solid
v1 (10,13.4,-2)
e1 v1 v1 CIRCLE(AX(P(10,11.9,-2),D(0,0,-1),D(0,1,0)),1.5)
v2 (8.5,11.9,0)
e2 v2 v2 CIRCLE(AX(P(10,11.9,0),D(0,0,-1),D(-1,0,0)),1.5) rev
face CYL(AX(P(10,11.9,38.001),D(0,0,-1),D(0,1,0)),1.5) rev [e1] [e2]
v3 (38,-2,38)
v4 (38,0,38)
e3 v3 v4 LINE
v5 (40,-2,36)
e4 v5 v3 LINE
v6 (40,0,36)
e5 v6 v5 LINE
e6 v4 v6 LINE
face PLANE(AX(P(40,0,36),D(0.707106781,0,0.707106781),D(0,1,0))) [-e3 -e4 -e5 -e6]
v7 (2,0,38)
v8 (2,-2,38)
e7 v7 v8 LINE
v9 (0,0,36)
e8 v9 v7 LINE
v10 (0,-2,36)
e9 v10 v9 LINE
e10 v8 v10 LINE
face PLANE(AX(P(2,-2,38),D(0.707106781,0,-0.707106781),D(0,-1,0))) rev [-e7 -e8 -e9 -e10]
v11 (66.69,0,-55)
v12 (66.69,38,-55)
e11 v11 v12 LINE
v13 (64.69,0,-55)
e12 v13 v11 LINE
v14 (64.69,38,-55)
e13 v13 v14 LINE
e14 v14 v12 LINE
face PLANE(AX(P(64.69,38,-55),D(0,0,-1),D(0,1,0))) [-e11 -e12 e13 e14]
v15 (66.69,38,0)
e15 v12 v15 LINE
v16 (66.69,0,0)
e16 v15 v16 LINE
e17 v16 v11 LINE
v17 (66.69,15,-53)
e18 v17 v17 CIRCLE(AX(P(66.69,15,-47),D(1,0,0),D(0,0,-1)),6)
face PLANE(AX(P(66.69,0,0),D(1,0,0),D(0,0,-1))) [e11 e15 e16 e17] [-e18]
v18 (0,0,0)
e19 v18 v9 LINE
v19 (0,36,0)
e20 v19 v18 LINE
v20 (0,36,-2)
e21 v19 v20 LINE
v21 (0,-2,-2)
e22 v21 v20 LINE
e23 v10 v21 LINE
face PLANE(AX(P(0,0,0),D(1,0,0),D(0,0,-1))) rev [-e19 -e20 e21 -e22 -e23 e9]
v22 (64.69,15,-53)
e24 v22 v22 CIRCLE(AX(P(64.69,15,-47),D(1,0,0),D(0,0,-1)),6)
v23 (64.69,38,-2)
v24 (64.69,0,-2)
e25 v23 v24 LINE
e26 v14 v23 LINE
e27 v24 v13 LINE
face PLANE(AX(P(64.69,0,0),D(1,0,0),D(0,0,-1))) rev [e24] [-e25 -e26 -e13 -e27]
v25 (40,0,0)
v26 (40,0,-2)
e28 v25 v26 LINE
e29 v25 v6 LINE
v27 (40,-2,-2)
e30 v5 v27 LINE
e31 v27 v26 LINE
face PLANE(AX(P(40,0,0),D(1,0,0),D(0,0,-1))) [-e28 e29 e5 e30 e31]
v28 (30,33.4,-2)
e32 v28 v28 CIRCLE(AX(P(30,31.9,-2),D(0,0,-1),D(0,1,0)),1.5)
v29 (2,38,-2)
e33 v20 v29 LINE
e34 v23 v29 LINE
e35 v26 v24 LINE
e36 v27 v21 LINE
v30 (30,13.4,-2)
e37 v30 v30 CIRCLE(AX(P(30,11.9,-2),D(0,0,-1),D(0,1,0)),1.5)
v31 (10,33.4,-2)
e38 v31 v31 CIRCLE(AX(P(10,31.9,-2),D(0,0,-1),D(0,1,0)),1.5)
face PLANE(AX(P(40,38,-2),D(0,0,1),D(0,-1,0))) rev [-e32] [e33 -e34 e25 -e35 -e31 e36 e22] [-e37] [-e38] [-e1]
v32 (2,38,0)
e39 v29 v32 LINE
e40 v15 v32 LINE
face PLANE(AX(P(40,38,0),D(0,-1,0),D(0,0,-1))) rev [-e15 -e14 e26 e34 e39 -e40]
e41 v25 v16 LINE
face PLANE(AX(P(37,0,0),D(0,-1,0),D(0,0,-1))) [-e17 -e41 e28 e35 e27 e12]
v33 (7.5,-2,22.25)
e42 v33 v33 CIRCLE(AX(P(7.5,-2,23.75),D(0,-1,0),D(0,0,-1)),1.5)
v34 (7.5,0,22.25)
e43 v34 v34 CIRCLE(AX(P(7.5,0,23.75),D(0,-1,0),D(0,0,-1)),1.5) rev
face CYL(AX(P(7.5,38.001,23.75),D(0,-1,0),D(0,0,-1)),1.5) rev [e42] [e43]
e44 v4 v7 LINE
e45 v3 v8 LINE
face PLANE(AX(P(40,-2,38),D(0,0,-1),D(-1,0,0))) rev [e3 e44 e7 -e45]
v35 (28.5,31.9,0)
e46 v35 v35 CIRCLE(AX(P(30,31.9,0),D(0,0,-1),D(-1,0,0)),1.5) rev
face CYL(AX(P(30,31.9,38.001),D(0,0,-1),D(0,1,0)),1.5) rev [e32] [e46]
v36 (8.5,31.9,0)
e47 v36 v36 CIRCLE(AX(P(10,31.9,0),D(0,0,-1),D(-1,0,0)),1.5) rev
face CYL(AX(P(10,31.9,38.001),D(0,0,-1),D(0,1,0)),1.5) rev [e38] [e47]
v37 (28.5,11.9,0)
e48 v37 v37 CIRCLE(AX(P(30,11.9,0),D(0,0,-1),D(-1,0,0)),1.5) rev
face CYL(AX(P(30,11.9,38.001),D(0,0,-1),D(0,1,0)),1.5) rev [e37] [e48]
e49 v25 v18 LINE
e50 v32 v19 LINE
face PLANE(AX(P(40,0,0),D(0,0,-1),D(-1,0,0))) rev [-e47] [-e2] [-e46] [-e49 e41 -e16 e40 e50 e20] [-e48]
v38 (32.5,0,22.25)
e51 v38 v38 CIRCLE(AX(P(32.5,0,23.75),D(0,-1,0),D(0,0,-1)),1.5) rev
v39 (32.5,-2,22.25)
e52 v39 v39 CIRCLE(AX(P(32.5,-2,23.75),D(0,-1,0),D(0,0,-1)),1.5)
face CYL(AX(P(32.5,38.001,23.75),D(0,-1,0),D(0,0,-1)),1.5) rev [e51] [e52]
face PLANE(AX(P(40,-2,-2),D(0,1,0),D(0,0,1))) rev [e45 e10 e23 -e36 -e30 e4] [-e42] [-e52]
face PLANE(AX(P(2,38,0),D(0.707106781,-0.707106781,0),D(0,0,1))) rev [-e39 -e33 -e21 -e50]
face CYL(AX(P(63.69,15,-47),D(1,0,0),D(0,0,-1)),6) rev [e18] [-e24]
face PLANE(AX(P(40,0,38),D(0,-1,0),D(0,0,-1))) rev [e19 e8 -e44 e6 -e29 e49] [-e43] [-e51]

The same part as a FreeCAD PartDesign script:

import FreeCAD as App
import Part
import Sketcher

V = App.Vector
Q = App.Units.Quantity


def edges_at(feature, points):
    """Names of the edges that pass closest to the given points."""
    edges = feature.Shape.Edges
    near = lambda p: min(range(len(edges)), key=lambda i: edges[i].distToShape(Part.Vertex(*p))[0])
    return sorted({f"Edge{near(p) + 1}" for p in points})

doc = App.newDocument("Part")
body = doc.addObject("PartDesign::Body", "Body")

sketch1 = body.newObject("Sketcher::SketchObject", "Sketch")
sketch1.AttachmentSupport = (doc.getObject("YZ_Plane"), [""])
sketch1.MapMode = "FlatFace"
sketch1.addGeometry(Part.LineSegment(V(38, 0, 0), V(0, 0, 0)), False)
sketch1.addGeometry(Part.LineSegment(V(0, 0, 0), V(0, 38, 0)), False)
sketch1.addGeometry(Part.LineSegment(V(0, 38, 0), V(-2, 38, 0)), False)
sketch1.addGeometry(Part.LineSegment(V(-2, 38, 0), V(-2, -2, 0)), False)
sketch1.addGeometry(Part.LineSegment(V(-2, -2, 0), V(38, -2, 0)), False)
sketch1.addGeometry(Part.LineSegment(V(38, -2, 0), V(38, 0, 0)), False)
sketch1.addConstraint(Sketcher.Constraint("Coincident", 0, 2, 1, 1))
sketch1.addConstraint(Sketcher.Constraint("Coincident", 1, 2, 2, 1))
sketch1.addConstraint(Sketcher.Constraint("Coincident", 2, 2, 3, 1))
sketch1.addConstraint(Sketcher.Constraint("Coincident", 3, 2, 4, 1))
sketch1.addConstraint(Sketcher.Constraint("Coincident", 4, 2, 5, 1))
sketch1.addConstraint(Sketcher.Constraint("Coincident", 5, 2, 0, 1))
sketch1.addConstraint(Sketcher.Constraint("Horizontal", 0))
sketch1.addConstraint(Sketcher.Constraint("Vertical", 1))
sketch1.addConstraint(Sketcher.Constraint("Horizontal", 2))
sketch1.addConstraint(Sketcher.Constraint("Vertical", 3))
sketch1.addConstraint(Sketcher.Constraint("Horizontal", 4))
sketch1.addConstraint(Sketcher.Constraint("Vertical", 5))
sketch1.addConstraint(Sketcher.Constraint("Coincident", 0, 2, -1, 1))
sketch1.addConstraint(Sketcher.Constraint("Equal", 0, 1))
sketch1.addConstraint(Sketcher.Constraint("Equal", 4, 3))
sketch1.addConstraint(Sketcher.Constraint("DistanceX", 0, 2, 0, 1, Q("38 mm")))
sketch1.addConstraint(Sketcher.Constraint("DistanceX", 2, 2, 2, 1, Q("2 mm")))
pad1 = body.newObject("PartDesign::Pad", "Pad")
pad1.Profile = sketch1
pad1.Length = 40

sketch2 = body.newObject("Sketcher::SketchObject", "Sketch001")
sketch2.AttachmentSupport = (doc.getObject("XZ_Plane"), [""])
sketch2.MapMode = "FlatFace"
sketch2.AttachmentOffset = App.Placement(V(0, 0, 2), App.Rotation())
sketch2.addGeometry(Part.Circle(V(32.5, 23.8, 0), V(0, 0, 1), 1.5), False)
sketch2.addConstraint(Sketcher.Constraint("Diameter", 0, Q("3 mm")))
sketch2.addConstraint(Sketcher.Constraint("DistanceX", -1, 1, 0, 3, Q("32.5 mm")))
sketch2.addConstraint(Sketcher.Constraint("DistanceY", -1, 1, 0, 3, Q("23.75 mm")))
pocket1 = body.newObject("PartDesign::Pocket", "Pocket")
pocket1.Profile = sketch2
pocket1.Type = "UpToFirst"

sketch3 = body.newObject("Sketcher::SketchObject", "Sketch002")
sketch3.AttachmentSupport = (doc.getObject("XZ_Plane"), [""])
sketch3.MapMode = "FlatFace"
sketch3.AttachmentOffset = App.Placement(V(0, 0, 2), App.Rotation())
sketch3.addGeometry(Part.Circle(V(7.5, 23.8, 0), V(0, 0, 1), 1.5), False)
sketch3.addConstraint(Sketcher.Constraint("Diameter", 0, Q("3 mm")))
sketch3.addConstraint(Sketcher.Constraint("DistanceX", -1, 1, 0, 3, Q("7.5 mm")))
sketch3.addConstraint(Sketcher.Constraint("DistanceY", -1, 1, 0, 3, Q("23.75 mm")))
pocket2 = body.newObject("PartDesign::Pocket", "Pocket001")
pocket2.Profile = sketch3
pocket2.Type = "UpToFirst"

sketch4 = body.newObject("Sketcher::SketchObject", "Sketch003")
sketch4.AttachmentSupport = (doc.getObject("XY_Plane"), [""])
sketch4.MapMode = "FlatFace"
sketch4.AttachmentOffset = App.Placement(V(0, 0, -2), App.Rotation())
sketch4.addGeometry(Part.Circle(V(10, 31.9, 0), V(0, 0, 1), 1.5), False)
sketch4.addConstraint(Sketcher.Constraint("Diameter", 0, Q("3 mm")))
sketch4.addConstraint(Sketcher.Constraint("DistanceX", -1, 1, 0, 3, Q("10 mm")))
sketch4.addConstraint(Sketcher.Constraint("DistanceY", -1, 1, 0, 3, Q("31.9 mm")))
pocket3 = body.newObject("PartDesign::Pocket", "Pocket002")
pocket3.Profile = sketch4
pocket3.Type = "UpToFirst"
pocket3.Reversed = True

sketch5 = body.newObject("Sketcher::SketchObject", "Sketch004")
sketch5.AttachmentSupport = (doc.getObject("XY_Plane"), [""])
sketch5.MapMode = "FlatFace"
sketch5.AttachmentOffset = App.Placement(V(0, 0, -2), App.Rotation())
sketch5.addGeometry(Part.Circle(V(30, 31.9, 0), V(0, 0, 1), 1.5), False)
sketch5.addConstraint(Sketcher.Constraint("Diameter", 0, Q("3 mm")))
sketch5.addConstraint(Sketcher.Constraint("DistanceX", -1, 1, 0, 3, Q("30 mm")))
sketch5.addConstraint(Sketcher.Constraint("DistanceY", -1, 1, 0, 3, Q("31.9 mm")))
pocket4 = body.newObject("PartDesign::Pocket", "Pocket003")
pocket4.Profile = sketch5
pocket4.Type = "UpToFirst"
pocket4.Reversed = True

sketch6 = body.newObject("Sketcher::SketchObject", "Sketch005")
sketch6.AttachmentSupport = (doc.getObject("XY_Plane"), [""])
sketch6.MapMode = "FlatFace"
sketch6.AttachmentOffset = App.Placement(V(0, 0, -2), App.Rotation())
sketch6.addGeometry(Part.Circle(V(30, 11.9, 0), V(0, 0, 1), 1.5), False)
sketch6.addConstraint(Sketcher.Constraint("Diameter", 0, Q("3 mm")))
sketch6.addConstraint(Sketcher.Constraint("DistanceX", -1, 1, 0, 3, Q("30 mm")))
sketch6.addConstraint(Sketcher.Constraint("DistanceY", -1, 1, 0, 3, Q("11.9 mm")))
pocket5 = body.newObject("PartDesign::Pocket", "Pocket004")
pocket5.Profile = sketch6
pocket5.Type = "UpToFirst"
pocket5.Reversed = True

sketch7 = body.newObject("Sketcher::SketchObject", "Sketch006")
sketch7.AttachmentSupport = (doc.getObject("XY_Plane"), [""])
sketch7.MapMode = "FlatFace"
sketch7.AttachmentOffset = App.Placement(V(0, 0, -2), App.Rotation())
sketch7.addGeometry(Part.Circle(V(10, 11.9, 0), V(0, 0, 1), 1.5), False)
sketch7.addConstraint(Sketcher.Constraint("Diameter", 0, Q("3 mm")))
sketch7.addConstraint(Sketcher.Constraint("DistanceX", -1, 1, 0, 3, Q("10 mm")))
sketch7.addConstraint(Sketcher.Constraint("DistanceY", -1, 1, 0, 3, Q("11.9 mm")))
pocket6 = body.newObject("PartDesign::Pocket", "Pocket005")
pocket6.Profile = sketch7
pocket6.Type = "UpToFirst"
pocket6.Reversed = True
doc.recompute()

chamfer = body.newObject("PartDesign::Chamfer", "Chamfer")
chamfer.Base = (pocket6, edges_at(pocket6, [
    (40, 38, -1),
    (0, 38, -1),
    (40, -1, 38),
    (0, -1, 38),
]))
chamfer.Size = 2

sketch8 = body.newObject("Sketcher::SketchObject", "Sketch007")
sketch8.AttachmentSupport = (doc.getObject("YZ_Plane"), [""])
sketch8.MapMode = "FlatFace"
sketch8.AttachmentOffset = App.Placement(V(0, 0, 40), App.Rotation())
sketch8.addGeometry(Part.LineSegment(V(38, 0, 0), V(0, 0, 0)), False)
sketch8.addGeometry(Part.LineSegment(V(0, 0, 0), V(0, -2, 0)), False)
sketch8.addGeometry(Part.LineSegment(V(0, -2, 0), V(38, -2, 0)), False)
sketch8.addGeometry(Part.LineSegment(V(38, -2, 0), V(38, 0, 0)), False)
sketch8.addConstraint(Sketcher.Constraint("Coincident", 0, 2, 1, 1))
sketch8.addConstraint(Sketcher.Constraint("Coincident", 1, 2, 2, 1))
sketch8.addConstraint(Sketcher.Constraint("Coincident", 2, 2, 3, 1))
sketch8.addConstraint(Sketcher.Constraint("Coincident", 3, 2, 0, 1))
sketch8.addConstraint(Sketcher.Constraint("Horizontal", 0))
sketch8.addConstraint(Sketcher.Constraint("Vertical", 1))
sketch8.addConstraint(Sketcher.Constraint("Horizontal", 2))
sketch8.addConstraint(Sketcher.Constraint("Vertical", 3))
sketch8.addConstraint(Sketcher.Constraint("Coincident", 0, 2, -1, 1))
sketch8.addConstraint(Sketcher.Constraint("DistanceX", 0, 2, 0, 1, Q("38 mm")))
sketch8.addConstraint(Sketcher.Constraint("DistanceY", 1, 2, 1, 1, Q("2 mm")))
pad2 = body.newObject("PartDesign::Pad", "Pad001")
pad2.Profile = sketch8
pad2.Type = "TwoLengths"
pad2.Length = 26.69
pad2.Length2 = 3

sketch9 = body.newObject("Sketcher::SketchObject", "Sketch008")
sketch9.AttachmentSupport = (doc.getObject("YZ_Plane"), [""])
sketch9.MapMode = "FlatFace"
sketch9.AttachmentOffset = App.Placement(V(0, 0, 66.69), App.Rotation())
sketch9.addGeometry(Part.LineSegment(V(38, -2, 0), V(0, -2, 0)), False)
sketch9.addGeometry(Part.LineSegment(V(0, -2, 0), V(0, -55, 0)), False)
sketch9.addGeometry(Part.LineSegment(V(0, -55, 0), V(38, -55, 0)), False)
sketch9.addGeometry(Part.LineSegment(V(38, -55, 0), V(38, -2, 0)), False)
sketch9.addConstraint(Sketcher.Constraint("Coincident", 0, 2, 1, 1))
sketch9.addConstraint(Sketcher.Constraint("Coincident", 1, 2, 2, 1))
sketch9.addConstraint(Sketcher.Constraint("Coincident", 2, 2, 3, 1))
sketch9.addConstraint(Sketcher.Constraint("Coincident", 3, 2, 0, 1))
sketch9.addConstraint(Sketcher.Constraint("Horizontal", 0))
sketch9.addConstraint(Sketcher.Constraint("Vertical", 1))
sketch9.addConstraint(Sketcher.Constraint("Horizontal", 2))
sketch9.addConstraint(Sketcher.Constraint("Vertical", 3))
sketch9.addConstraint(Sketcher.Constraint("PointOnObject", 0, 2, -2))
sketch9.addConstraint(Sketcher.Constraint("DistanceX", 0, 2, 0, 1, Q("38 mm")))
sketch9.addConstraint(Sketcher.Constraint("DistanceY", 1, 2, 1, 1, Q("53 mm")))
sketch9.addConstraint(Sketcher.Constraint("DistanceY", 0, 2, -1, 1, Q("2 mm")))
pad3 = body.newObject("PartDesign::Pad", "Pad002")
pad3.Profile = sketch9
pad3.Length = 2
pad3.Reversed = True

sketch10 = body.newObject("Sketcher::SketchObject", "Sketch009")
sketch10.AttachmentSupport = (doc.getObject("YZ_Plane"), [""])
sketch10.MapMode = "FlatFace"
sketch10.AttachmentOffset = App.Placement(V(0, 0, 66.69), App.Rotation())
sketch10.addGeometry(Part.Circle(V(15, -47, 0), V(0, 0, 1), 6), False)
sketch10.addConstraint(Sketcher.Constraint("Diameter", 0, Q("12 mm")))
sketch10.addConstraint(Sketcher.Constraint("DistanceX", -1, 1, 0, 3, Q("15 mm")))
sketch10.addConstraint(Sketcher.Constraint("DistanceY", 0, 3, -1, 1, Q("47 mm")))
pocket7 = body.newObject("PartDesign::Pocket", "Pocket006")
pocket7.Profile = sketch10
pocket7.Length = 3

doc.recompute()
